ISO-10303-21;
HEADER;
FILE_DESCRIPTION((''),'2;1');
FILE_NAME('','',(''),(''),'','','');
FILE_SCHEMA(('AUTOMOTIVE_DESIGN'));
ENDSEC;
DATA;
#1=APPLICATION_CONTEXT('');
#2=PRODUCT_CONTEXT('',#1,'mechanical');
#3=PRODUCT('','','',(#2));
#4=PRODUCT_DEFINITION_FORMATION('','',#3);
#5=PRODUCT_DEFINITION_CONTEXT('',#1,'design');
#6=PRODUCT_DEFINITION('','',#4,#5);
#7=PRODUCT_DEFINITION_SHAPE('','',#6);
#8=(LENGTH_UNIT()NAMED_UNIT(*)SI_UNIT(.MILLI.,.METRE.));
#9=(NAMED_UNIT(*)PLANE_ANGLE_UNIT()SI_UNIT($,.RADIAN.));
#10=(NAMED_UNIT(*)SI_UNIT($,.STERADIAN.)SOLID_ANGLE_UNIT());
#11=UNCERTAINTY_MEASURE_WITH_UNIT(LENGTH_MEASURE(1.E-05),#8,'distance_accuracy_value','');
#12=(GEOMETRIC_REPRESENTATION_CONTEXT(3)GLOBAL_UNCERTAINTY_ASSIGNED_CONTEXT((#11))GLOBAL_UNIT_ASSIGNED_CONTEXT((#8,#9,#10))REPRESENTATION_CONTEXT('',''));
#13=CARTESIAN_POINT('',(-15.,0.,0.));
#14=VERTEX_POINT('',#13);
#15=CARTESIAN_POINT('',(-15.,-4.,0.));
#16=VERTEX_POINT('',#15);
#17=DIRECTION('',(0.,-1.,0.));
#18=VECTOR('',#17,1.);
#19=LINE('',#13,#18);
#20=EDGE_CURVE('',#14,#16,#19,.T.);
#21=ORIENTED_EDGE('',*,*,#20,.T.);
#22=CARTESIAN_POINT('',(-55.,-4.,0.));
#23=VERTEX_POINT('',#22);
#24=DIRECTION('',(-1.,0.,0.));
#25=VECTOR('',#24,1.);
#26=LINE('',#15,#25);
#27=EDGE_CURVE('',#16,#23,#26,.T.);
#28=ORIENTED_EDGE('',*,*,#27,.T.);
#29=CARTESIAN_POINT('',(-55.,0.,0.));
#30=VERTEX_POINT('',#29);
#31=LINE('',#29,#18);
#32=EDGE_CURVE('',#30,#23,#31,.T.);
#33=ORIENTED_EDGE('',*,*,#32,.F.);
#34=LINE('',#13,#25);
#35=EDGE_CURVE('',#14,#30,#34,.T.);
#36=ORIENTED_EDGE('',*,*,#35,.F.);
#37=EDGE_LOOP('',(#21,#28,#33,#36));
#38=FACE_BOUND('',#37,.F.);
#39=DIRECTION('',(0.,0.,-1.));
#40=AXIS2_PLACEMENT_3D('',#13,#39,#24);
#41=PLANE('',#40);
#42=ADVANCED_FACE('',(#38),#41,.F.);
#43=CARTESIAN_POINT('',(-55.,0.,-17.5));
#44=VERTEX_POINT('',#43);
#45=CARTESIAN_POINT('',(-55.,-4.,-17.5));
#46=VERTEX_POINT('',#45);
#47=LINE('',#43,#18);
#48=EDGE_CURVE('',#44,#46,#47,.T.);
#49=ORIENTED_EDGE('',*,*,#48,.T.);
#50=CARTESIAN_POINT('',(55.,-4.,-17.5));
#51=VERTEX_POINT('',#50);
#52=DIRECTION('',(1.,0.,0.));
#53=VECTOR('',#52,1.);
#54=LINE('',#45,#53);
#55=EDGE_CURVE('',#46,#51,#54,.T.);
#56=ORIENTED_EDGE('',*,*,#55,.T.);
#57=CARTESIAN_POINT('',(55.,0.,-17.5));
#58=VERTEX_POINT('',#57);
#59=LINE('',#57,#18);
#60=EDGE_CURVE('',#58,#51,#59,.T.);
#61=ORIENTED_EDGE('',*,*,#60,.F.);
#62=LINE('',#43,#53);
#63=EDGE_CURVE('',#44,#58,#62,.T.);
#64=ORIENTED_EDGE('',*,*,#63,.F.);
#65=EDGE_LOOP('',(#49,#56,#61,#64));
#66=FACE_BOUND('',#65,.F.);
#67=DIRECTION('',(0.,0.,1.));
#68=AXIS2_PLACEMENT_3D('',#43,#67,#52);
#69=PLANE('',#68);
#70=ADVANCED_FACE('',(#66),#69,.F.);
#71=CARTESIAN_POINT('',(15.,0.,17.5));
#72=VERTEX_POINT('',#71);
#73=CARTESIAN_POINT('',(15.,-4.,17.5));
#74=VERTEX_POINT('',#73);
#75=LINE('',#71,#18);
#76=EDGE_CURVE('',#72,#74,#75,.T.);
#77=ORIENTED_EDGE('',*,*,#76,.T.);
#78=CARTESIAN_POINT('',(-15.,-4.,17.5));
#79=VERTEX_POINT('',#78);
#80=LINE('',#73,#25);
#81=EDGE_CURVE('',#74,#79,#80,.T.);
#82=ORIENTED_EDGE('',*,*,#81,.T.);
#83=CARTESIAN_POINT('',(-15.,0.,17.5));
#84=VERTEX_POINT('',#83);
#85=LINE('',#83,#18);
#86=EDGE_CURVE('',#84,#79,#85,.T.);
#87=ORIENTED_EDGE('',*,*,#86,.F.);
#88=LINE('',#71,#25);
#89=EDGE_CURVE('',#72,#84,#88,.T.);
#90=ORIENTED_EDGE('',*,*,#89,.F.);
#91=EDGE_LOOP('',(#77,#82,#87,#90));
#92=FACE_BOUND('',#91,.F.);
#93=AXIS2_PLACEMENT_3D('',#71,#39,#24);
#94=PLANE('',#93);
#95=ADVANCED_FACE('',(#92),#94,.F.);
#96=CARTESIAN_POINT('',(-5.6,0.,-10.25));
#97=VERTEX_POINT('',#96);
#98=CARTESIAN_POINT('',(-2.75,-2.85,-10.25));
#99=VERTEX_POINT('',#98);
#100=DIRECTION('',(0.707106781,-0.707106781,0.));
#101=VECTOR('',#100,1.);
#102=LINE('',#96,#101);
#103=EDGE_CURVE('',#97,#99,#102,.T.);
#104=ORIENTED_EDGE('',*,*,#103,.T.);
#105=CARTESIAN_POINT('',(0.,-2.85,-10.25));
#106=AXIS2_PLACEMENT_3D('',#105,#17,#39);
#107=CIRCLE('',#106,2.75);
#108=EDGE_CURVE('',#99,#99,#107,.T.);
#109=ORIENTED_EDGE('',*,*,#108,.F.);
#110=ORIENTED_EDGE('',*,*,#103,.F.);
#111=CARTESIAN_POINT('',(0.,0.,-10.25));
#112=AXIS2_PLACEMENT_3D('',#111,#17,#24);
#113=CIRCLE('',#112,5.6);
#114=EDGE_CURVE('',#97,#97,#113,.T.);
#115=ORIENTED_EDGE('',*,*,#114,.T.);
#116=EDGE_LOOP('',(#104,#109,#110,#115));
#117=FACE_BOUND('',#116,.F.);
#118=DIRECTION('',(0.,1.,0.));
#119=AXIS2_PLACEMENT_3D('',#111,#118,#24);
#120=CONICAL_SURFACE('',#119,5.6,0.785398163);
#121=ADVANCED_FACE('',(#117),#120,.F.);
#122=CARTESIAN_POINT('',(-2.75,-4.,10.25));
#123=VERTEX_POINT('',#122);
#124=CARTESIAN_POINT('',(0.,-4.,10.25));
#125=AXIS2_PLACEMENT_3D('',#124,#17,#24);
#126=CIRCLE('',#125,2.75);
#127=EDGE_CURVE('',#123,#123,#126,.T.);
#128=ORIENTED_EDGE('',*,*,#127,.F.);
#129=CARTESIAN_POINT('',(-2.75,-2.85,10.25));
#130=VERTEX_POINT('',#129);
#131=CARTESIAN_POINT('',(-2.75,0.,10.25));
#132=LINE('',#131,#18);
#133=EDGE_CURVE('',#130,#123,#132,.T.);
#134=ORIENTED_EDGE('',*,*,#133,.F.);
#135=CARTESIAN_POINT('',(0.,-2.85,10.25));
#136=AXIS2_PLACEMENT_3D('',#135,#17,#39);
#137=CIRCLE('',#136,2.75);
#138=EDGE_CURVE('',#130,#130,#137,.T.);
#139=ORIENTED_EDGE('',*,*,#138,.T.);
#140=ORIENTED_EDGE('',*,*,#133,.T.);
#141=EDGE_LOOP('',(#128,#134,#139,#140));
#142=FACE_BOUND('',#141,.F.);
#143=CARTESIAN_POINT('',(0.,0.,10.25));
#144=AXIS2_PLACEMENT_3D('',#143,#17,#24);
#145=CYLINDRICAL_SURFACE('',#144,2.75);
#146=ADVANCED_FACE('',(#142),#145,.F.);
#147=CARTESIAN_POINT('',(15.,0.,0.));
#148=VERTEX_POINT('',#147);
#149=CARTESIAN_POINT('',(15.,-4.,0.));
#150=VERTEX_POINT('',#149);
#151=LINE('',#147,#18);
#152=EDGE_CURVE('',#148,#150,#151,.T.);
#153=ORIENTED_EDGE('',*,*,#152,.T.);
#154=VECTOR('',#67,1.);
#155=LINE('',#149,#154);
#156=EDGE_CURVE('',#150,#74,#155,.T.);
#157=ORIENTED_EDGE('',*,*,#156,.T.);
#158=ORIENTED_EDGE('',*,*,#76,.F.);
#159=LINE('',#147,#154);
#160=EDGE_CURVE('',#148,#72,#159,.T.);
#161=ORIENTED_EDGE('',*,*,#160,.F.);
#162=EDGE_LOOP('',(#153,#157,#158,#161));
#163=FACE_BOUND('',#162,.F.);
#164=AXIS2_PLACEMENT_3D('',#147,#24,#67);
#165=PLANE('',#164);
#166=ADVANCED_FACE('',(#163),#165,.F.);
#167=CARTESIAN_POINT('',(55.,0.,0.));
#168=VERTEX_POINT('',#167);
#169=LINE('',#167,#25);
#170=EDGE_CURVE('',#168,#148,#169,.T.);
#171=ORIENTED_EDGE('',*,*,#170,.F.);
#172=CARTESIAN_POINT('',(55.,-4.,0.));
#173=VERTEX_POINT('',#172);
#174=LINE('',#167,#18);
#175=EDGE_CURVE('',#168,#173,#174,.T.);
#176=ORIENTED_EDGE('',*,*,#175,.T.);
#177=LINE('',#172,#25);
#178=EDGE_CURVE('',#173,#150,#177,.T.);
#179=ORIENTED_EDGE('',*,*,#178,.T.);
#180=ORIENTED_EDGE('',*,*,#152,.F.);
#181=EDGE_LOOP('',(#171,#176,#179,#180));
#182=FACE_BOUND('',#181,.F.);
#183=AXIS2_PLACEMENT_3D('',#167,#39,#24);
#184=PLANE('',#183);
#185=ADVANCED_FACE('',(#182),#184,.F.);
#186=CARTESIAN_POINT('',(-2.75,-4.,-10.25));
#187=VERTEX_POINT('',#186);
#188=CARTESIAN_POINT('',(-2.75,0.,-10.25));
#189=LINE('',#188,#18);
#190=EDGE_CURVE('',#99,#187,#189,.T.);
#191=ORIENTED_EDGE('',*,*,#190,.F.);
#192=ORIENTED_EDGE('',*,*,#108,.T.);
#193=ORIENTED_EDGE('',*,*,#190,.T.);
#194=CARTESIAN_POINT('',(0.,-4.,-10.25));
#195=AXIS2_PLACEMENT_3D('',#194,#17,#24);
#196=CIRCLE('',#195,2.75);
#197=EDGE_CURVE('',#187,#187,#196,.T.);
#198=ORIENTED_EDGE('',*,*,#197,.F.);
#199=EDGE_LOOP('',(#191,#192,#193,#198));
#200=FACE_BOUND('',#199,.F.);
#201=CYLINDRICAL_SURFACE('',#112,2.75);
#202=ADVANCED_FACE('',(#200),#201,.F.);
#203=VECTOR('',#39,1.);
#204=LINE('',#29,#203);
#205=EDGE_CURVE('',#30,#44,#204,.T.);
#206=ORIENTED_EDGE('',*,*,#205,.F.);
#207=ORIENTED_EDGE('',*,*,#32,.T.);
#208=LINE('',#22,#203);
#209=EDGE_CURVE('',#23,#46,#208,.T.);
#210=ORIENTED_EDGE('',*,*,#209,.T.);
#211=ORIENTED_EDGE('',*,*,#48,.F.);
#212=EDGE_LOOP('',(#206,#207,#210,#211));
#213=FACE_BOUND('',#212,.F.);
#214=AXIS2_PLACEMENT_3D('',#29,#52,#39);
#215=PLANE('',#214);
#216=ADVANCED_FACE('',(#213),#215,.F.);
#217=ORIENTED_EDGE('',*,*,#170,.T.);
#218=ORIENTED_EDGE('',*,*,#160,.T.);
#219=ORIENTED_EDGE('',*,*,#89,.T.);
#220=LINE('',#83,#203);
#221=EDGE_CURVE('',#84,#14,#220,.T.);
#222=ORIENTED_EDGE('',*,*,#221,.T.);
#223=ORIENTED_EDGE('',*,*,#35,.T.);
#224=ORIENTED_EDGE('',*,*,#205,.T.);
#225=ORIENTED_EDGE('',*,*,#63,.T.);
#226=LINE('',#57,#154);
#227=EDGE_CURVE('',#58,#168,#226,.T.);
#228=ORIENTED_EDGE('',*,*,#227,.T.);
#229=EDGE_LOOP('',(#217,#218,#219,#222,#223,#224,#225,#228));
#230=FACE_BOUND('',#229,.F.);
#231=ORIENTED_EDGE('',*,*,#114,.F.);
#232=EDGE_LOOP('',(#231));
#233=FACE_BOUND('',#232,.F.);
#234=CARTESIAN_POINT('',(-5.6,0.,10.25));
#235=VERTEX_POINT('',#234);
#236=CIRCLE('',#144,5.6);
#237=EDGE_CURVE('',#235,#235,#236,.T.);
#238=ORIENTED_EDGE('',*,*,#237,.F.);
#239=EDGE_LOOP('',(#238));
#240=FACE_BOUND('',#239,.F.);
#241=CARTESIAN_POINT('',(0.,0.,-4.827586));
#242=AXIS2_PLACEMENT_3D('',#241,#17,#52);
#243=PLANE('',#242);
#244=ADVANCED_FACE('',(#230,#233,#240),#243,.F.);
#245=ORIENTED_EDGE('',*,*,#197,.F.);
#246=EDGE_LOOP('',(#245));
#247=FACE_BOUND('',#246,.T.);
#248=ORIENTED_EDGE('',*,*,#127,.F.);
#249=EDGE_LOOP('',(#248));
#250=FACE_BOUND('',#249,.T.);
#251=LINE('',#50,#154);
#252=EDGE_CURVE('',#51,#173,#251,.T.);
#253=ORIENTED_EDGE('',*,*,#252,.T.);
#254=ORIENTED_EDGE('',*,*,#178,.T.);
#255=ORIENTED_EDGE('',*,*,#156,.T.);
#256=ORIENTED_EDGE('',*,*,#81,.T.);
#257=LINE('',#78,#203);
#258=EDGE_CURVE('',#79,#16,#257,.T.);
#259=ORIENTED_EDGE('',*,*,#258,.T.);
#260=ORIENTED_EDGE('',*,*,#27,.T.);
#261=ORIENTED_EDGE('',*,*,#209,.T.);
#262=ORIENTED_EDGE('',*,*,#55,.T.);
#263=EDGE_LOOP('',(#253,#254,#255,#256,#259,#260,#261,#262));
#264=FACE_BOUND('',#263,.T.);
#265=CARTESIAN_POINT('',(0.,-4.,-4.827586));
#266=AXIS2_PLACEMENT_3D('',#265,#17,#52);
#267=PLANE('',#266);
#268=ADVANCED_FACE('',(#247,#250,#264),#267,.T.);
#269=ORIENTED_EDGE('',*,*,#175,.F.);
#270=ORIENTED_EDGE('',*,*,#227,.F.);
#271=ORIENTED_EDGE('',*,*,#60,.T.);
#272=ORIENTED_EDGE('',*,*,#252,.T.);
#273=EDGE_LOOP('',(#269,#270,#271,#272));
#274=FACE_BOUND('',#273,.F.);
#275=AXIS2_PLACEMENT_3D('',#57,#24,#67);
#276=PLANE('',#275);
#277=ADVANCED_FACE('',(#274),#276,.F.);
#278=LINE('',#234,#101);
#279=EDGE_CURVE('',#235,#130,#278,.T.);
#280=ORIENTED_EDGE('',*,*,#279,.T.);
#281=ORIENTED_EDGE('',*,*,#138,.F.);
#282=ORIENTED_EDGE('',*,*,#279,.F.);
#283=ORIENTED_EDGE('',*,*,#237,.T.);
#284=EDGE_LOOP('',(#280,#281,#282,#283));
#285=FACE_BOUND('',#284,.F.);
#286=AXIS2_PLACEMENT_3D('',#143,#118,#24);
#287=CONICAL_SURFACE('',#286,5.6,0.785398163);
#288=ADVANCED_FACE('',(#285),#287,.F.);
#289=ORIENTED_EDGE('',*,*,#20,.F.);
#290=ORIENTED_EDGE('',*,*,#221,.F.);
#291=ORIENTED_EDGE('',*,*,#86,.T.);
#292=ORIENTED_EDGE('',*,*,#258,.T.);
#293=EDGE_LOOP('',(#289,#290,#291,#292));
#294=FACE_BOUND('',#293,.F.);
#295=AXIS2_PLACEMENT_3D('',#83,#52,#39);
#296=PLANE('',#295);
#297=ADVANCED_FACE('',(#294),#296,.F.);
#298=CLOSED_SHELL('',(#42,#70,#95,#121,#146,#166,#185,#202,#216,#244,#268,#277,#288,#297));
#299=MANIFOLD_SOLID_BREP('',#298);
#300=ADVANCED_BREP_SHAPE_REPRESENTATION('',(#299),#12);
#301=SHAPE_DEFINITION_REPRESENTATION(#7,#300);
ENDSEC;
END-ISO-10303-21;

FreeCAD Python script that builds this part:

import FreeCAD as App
import Part
import Sketcher

V = App.Vector
Q = App.Units.Quantity

doc = App.newDocument("Part")
params = doc.addObject("Spreadsheet::Sheet", "Params")
for row, (alias, value) in enumerate([
    ("sketch1_width", "30 mm"),
    ("sketch1_width2", "40 mm"),
    ("sketch1_height", "17.5 mm"),
    ("pad1_length", "4 mm"),
    ("sketch2_diameter", "5.5 mm"),
    ("hole_diameter", "5.5 mm"),
    ("hole_csink_diameter", "11.2 mm"),
], start=1):
    params.set(f"A{row}", alias)
    params.set(f"B{row}", "=" + value)
    params.setAlias(f"B{row}", alias)

body = doc.addObject("PartDesign::Body", "Body")

sketch1 = body.newObject("Sketcher::SketchObject", "Sketch")
sketch1.AttachmentSupport = (doc.getObject("XZ_Plane"), [""])
sketch1.MapMode = "FlatFace"
sketch1.addGeometry(Part.LineSegment(V(15, 0, 0), V(15, 18, 0)), False)
sketch1.addGeometry(Part.LineSegment(V(15, 18, 0), V(-15, 18, 0)), False)
sketch1.addGeometry(Part.LineSegment(V(-15, 18, 0), V(-15, 0, 0)), False)
sketch1.addGeometry(Part.LineSegment(V(-15, 0, 0), V(-55, 0, 0)), False)
sketch1.addGeometry(Part.LineSegment(V(-55, 0, 0), V(-55, -18, 0)), False)
sketch1.addGeometry(Part.LineSegment(V(-55, -18, 0), V(55, -18, 0)), False)
sketch1.addGeometry(Part.LineSegment(V(55, -18, 0), V(55, 0, 0)), False)
sketch1.addGeometry(Part.LineSegment(V(55, 0, 0), V(15, 0, 0)), False)
sketch1.addConstraint(Sketcher.Constraint("Coincident", 0, 2, 1, 1))
sketch1.addConstraint(Sketcher.Constraint("Coincident", 1, 2, 2, 1))
sketch1.addConstraint(Sketcher.Constraint("Coincident", 2, 2, 3, 1))
sketch1.addConstraint(Sketcher.Constraint("Coincident", 3, 2, 4, 1))
sketch1.addConstraint(Sketcher.Constraint("Coincident", 4, 2, 5, 1))
sketch1.addConstraint(Sketcher.Constraint("Coincident", 5, 2, 6, 1))
sketch1.addConstraint(Sketcher.Constraint("Coincident", 6, 2, 7, 1))
sketch1.addConstraint(Sketcher.Constraint("Coincident", 7, 2, 0, 1))
sketch1.addConstraint(Sketcher.Constraint("Vertical", 0))
sketch1.addConstraint(Sketcher.Constraint("Horizontal", 1))
sketch1.addConstraint(Sketcher.Constraint("Vertical", 2))
sketch1.addConstraint(Sketcher.Constraint("Horizontal", 3))
sketch1.addConstraint(Sketcher.Constraint("Vertical", 4))
sketch1.addConstraint(Sketcher.Constraint("Horizontal", 5))
sketch1.addConstraint(Sketcher.Constraint("Vertical", 6))
sketch1.addConstraint(Sketcher.Constraint("Horizontal", 7))
sketch1.addConstraint(Sketcher.Constraint("Symmetric", 3, 2, 6, 2, -1, 1))
sketch1.addConstraint(Sketcher.Constraint("Symmetric", 2, 2, 7, 2, -2))
sketch1.addConstraint(Sketcher.Constraint("Equal", 2, 4))
sketch1.addConstraint(Sketcher.Constraint("DistanceX", 1, 2, 1, 1, Q("30 mm")))
sketch1.addConstraint(Sketcher.Constraint("DistanceX", 3, 2, 3, 1, Q("40 mm")))
sketch1.addConstraint(Sketcher.Constraint("DistanceY", 0, 1, 0, 2, Q("17.5 mm")))
sketch1.setExpression("Constraints[19]", "Params.sketch1_width")
sketch1.setExpression("Constraints[20]", "Params.sketch1_width2")
sketch1.setExpression("Constraints[21]", "Params.sketch1_height")
pad1 = body.newObject("PartDesign::Pad", "Pad")
pad1.Profile = sketch1
pad1.setExpression("Length", "Params.pad1_length")

sketch2 = body.newObject("Sketcher::SketchObject", "Sketch001")
sketch2.AttachmentSupport = (doc.getObject("XZ_Plane"), [""])
sketch2.MapMode = "FlatFace"
sketch2.addGeometry(Part.Circle(V(0, 10.2, 0), V(0, 0, 1), 2.8), False)
sketch2.addGeometry(Part.Circle(V(0, -10.2, 0), V(0, 0, 1), 2.8), False)
sketch2.addConstraint(Sketcher.Constraint("Equal", 0, 1))
sketch2.addConstraint(Sketcher.Constraint("Symmetric", 0, 3, 1, 3, -1, 1))
sketch2.addConstraint(Sketcher.Constraint("PointOnObject", 0, 3, -2))
sketch2.addConstraint(Sketcher.Constraint("Diameter", 0, Q("5.5 mm")))
sketch2.addConstraint(Sketcher.Constraint("DistanceY", 1, 3, 0, 3, Q("20.5 mm")))
sketch2.setExpression("Constraints[3]", "Params.sketch2_diameter")
doc.recompute()
hole = body.newObject("PartDesign::Hole", "Hole")
hole.Profile = sketch2
hole.ThreadType = "None"
hole.setExpression("Diameter", "Params.hole_diameter")
hole.DepthType = "ThroughAll"
hole.HoleCutType = "Countersink"
hole.setExpression("HoleCutDiameter", "Params.hole_csink_diameter")
hole.HoleCutCountersinkAngle = 90
hole.Reversed = True

doc.recompute()
